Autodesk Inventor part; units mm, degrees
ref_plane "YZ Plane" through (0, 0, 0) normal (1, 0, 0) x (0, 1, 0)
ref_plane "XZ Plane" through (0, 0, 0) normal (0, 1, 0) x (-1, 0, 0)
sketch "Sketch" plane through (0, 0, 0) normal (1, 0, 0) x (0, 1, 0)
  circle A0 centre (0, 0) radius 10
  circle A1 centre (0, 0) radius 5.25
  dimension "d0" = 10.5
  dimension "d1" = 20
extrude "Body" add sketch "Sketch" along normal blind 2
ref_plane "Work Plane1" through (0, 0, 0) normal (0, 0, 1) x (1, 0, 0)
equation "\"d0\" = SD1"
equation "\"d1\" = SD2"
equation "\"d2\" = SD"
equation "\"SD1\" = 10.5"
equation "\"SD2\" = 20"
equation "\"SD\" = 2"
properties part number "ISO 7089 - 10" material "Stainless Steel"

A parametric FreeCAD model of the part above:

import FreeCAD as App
import Part
import Sketcher
from FreeCAD import Vector
Q = App.Units.Quantity

doc = App.newDocument("Part")
params = doc.addObject("Spreadsheet::Sheet", "Params")
for row, (alias, value) in enumerate([
    ("sketch1_diameter", "20 mm"),
    ("sketch1_diameter2", "10.5 mm"),
    ("pad1_length", "2 mm"),
], start=1):
    params.set(f"A{row}", alias)
    params.set(f"B{row}", "=" + value)
    params.setAlias(f"B{row}", alias)

body = doc.addObject("PartDesign::Body", "Body")

sketch1 = body.newObject("Sketcher::SketchObject", "Sketch")
sketch1.AttachmentSupport = (doc.getObject("YZ_Plane"), [""])
sketch1.MapMode = "FlatFace"
sketch1.addGeometry([
    Part.Circle(Vector(0, 0, 0), Vector(0, 0, 1), 10),
    Part.Circle(Vector(0, 0, 0), Vector(0, 0, 1), 5.25),
], False)
sketch1.addConstraint([
    Sketcher.Constraint("Coincident", 0, 3, -1, 1),
    Sketcher.Constraint("Coincident", 1, 3, -1, 1),
    Sketcher.Constraint("Diameter", 0, Q("20 mm")),
    Sketcher.Constraint("Diameter", 1, Q("10.5 mm")),
])
sketch1.setExpression("Constraints[2]", "Params.sketch1_diameter")
sketch1.setExpression("Constraints[3]", "Params.sketch1_diameter2")
pad1 = body.newObject("PartDesign::Pad", "Pad")
pad1.Profile = sketch1
pad1.setExpression("Length", "Params.pad1_length")

doc.recompute()
